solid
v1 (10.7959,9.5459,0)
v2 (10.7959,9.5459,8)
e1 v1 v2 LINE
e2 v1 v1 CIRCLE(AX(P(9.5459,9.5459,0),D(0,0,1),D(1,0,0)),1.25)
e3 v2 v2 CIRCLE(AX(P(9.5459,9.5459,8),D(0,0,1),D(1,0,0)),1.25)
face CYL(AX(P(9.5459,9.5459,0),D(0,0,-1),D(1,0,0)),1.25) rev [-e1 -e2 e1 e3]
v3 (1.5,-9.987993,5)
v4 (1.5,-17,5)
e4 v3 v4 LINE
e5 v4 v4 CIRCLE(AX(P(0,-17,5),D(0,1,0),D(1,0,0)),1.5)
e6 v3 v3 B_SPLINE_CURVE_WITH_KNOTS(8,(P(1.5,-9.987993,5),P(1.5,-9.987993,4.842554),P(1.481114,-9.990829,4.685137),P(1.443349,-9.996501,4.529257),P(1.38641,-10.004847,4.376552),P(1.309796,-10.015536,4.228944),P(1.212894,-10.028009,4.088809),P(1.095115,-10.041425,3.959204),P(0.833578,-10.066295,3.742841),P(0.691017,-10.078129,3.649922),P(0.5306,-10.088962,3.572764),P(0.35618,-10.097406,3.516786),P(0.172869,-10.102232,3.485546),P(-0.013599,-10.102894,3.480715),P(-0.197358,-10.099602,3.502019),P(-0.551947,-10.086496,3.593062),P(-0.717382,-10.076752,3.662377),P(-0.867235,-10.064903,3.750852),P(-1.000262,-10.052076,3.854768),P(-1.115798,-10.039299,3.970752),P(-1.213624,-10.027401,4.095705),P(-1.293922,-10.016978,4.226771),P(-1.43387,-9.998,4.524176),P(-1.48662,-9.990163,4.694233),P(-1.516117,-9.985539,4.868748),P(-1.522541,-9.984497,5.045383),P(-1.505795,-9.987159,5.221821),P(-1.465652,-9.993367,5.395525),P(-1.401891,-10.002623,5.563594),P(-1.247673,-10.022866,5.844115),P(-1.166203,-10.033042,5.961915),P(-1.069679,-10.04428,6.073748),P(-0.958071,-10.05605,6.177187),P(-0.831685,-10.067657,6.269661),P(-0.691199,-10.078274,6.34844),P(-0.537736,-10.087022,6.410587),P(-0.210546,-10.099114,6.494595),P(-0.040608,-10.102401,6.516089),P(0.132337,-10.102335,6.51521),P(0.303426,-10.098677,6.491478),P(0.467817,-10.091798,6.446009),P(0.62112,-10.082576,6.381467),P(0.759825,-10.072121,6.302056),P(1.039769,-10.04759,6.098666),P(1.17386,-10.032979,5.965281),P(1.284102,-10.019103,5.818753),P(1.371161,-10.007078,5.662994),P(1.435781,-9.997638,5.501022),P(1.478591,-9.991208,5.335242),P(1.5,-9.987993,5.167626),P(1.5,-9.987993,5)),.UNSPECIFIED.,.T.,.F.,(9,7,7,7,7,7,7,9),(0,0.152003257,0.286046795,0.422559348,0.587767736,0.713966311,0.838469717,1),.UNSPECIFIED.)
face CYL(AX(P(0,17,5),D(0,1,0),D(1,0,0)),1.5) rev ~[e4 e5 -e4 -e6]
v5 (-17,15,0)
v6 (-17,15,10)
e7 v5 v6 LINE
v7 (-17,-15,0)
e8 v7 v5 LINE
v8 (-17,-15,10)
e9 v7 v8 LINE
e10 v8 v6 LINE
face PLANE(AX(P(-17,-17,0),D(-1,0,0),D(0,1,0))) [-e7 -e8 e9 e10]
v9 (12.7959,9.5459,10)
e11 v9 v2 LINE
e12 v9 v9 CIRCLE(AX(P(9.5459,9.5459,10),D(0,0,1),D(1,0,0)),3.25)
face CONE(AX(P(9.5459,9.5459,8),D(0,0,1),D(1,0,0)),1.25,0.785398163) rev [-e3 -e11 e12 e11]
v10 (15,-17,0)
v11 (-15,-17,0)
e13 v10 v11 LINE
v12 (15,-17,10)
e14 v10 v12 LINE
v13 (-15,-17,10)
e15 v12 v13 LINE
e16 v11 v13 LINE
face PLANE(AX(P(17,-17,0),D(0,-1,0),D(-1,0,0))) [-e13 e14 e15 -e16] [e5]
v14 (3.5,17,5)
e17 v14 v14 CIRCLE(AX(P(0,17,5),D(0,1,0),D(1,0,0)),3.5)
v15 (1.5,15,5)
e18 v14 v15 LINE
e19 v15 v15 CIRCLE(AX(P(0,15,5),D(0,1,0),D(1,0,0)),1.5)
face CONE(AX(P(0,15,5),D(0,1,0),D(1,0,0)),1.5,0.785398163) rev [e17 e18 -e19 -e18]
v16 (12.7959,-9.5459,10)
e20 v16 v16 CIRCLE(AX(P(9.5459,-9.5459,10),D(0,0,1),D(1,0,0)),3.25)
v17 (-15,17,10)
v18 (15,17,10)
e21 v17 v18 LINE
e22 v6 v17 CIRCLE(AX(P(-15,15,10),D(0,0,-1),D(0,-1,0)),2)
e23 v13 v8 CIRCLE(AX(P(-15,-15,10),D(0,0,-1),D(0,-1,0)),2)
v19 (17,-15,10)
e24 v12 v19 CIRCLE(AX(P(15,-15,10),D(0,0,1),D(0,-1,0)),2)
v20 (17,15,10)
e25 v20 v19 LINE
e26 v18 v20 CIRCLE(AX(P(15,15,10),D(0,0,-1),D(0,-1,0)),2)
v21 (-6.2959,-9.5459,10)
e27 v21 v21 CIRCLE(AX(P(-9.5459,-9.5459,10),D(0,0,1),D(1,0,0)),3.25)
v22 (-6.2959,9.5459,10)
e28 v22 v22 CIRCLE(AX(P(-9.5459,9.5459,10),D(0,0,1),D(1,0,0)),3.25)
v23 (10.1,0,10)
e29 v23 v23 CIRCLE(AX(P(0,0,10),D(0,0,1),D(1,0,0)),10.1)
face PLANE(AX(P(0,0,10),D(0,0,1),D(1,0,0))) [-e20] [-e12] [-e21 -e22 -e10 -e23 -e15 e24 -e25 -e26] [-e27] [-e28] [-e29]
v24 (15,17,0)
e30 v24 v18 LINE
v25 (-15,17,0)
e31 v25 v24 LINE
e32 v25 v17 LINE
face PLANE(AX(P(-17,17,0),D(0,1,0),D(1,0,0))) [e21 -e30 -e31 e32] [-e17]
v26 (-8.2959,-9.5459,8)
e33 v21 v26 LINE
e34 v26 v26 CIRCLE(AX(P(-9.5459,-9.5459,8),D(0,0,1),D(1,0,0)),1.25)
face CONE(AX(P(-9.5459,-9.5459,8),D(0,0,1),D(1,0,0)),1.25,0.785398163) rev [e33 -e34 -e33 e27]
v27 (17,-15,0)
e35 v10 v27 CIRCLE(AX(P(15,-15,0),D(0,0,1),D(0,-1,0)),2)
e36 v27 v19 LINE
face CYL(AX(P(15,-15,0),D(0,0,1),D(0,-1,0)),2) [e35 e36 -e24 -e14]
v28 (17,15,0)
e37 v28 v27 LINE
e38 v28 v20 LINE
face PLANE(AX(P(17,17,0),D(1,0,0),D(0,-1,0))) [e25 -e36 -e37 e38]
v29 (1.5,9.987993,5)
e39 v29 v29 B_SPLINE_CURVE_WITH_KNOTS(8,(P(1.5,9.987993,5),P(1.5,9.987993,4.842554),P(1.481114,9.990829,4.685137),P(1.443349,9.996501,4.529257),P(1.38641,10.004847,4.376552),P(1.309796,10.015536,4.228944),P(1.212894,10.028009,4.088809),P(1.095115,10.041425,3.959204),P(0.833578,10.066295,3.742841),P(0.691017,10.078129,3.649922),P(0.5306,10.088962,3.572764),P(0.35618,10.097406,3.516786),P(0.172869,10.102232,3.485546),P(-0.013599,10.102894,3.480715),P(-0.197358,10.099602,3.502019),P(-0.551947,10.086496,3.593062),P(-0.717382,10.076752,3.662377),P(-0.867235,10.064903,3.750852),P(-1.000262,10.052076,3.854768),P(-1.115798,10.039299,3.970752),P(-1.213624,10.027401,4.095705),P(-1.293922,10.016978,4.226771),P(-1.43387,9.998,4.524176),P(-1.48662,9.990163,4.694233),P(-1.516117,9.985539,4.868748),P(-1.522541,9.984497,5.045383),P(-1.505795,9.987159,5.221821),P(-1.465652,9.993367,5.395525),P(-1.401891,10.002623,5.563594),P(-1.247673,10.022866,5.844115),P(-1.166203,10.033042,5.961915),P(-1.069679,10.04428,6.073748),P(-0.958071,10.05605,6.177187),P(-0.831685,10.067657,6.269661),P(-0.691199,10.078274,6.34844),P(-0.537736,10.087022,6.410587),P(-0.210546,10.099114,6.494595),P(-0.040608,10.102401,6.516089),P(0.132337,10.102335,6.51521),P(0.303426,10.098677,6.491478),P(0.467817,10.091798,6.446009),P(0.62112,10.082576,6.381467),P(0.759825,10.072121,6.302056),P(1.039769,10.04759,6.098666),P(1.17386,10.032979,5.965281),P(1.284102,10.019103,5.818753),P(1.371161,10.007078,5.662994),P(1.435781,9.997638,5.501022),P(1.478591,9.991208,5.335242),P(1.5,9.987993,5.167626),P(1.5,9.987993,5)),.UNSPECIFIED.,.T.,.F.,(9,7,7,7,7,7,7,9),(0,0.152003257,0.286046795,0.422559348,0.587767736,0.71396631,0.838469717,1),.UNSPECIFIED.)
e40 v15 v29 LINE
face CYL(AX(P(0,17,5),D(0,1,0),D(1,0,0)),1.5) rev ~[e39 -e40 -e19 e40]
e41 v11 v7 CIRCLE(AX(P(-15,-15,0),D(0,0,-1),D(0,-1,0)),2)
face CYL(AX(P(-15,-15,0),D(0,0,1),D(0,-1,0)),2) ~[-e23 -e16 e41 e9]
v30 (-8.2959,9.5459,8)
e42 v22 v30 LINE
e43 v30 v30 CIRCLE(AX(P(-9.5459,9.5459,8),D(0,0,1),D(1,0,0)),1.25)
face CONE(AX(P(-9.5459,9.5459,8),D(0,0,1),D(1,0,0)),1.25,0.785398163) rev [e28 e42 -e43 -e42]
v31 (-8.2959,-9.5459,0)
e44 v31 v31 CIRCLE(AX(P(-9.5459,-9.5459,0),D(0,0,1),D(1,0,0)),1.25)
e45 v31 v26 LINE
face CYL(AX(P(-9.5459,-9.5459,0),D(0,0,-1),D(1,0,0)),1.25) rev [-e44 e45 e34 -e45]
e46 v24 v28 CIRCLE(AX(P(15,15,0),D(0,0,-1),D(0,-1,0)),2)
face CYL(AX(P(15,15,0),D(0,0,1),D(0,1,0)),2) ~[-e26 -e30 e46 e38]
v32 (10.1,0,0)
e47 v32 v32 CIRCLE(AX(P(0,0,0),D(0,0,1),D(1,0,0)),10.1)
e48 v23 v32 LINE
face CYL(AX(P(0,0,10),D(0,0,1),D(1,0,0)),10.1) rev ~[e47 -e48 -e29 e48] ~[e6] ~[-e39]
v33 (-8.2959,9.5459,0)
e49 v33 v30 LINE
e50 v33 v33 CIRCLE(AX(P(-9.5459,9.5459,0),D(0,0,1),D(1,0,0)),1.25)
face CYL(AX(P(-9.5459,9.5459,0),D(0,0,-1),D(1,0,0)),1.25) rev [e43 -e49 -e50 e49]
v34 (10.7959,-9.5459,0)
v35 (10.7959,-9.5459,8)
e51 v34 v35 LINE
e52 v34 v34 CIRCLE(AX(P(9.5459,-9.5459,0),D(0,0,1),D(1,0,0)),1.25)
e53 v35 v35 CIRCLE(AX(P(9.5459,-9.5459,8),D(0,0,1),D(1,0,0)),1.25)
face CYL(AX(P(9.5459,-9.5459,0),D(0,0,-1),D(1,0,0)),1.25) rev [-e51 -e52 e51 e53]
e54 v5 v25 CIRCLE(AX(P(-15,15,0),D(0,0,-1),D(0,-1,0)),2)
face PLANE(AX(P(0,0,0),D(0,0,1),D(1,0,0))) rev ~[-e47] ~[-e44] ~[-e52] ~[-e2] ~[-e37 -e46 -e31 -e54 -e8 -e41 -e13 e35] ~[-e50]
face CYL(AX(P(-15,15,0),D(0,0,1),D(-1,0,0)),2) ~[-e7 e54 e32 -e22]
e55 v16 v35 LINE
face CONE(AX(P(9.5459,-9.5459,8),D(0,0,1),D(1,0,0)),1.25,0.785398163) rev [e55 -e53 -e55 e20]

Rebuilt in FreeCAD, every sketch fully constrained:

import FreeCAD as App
import Part
import Sketcher
from FreeCAD import Vector
Q = App.Units.Quantity


def edges_at(feature, points):
    """Names of the edges that pass closest to the given points."""
    edges = feature.Shape.Edges
    near = lambda p: min(range(len(edges)), key=lambda i: edges[i].distToShape(Part.Vertex(*p))[0])
    return sorted({f"Edge{near(p) + 1}" for p in points})

doc = App.newDocument("Part")
body = doc.addObject("PartDesign::Body", "Body")

# Sketch on XY plane
sketch1 = body.newObject("Sketcher::SketchObject", "Sketch")
sketch1.AttachmentSupport = (doc.getObject("XY_Plane"), [""])
sketch1.MapMode = "FlatFace"
sketch1.addGeometry(Part.LineSegment(Vector(-17, -17, 0), Vector(17, -17, 0)), False)
sketch1.addGeometry(Part.LineSegment(Vector(17, -17, 0), Vector(17, 17, 0)), False)
sketch1.addGeometry(Part.LineSegment(Vector(17, 17, 0), Vector(-17, 17, 0)), False)
sketch1.addGeometry(Part.LineSegment(Vector(-17, 17, 0), Vector(-17, -17, 0)), False)
sketch1.addGeometry(Part.Circle(Vector(-9.5, -9.5, 0), Vector(0, 0, 1), 1.2), False)
sketch1.addGeometry(Part.Circle(Vector(9.5, -9.5, 0), Vector(0, 0, 1), 1.2), False)
sketch1.addGeometry(Part.Circle(Vector(-9.5, 9.5, 0), Vector(0, 0, 1), 1.2), False)
sketch1.addGeometry(Part.Circle(Vector(9.5, 9.5, 0), Vector(0, 0, 1), 1.2), False)
sketch1.addConstraint(Sketcher.Constraint("Coincident", 0, 2, 1, 1))
sketch1.addConstraint(Sketcher.Constraint("Coincident", 1, 2, 2, 1))
sketch1.addConstraint(Sketcher.Constraint("Coincident", 2, 2, 3, 1))
sketch1.addConstraint(Sketcher.Constraint("Coincident", 3, 2, 0, 1))
sketch1.addConstraint(Sketcher.Constraint("Horizontal", 0))
sketch1.addConstraint(Sketcher.Constraint("Vertical", 1))
sketch1.addConstraint(Sketcher.Constraint("Horizontal", 2))
sketch1.addConstraint(Sketcher.Constraint("Vertical", 3))
sketch1.addConstraint(Sketcher.Constraint("Equal", 4, 5))
sketch1.addConstraint(Sketcher.Constraint("Equal", 5, 6))
sketch1.addConstraint(Sketcher.Constraint("Equal", 6, 7))
sketch1.addConstraint(Sketcher.Constraint("Symmetric", 5, 3, 6, 3, -1, 1))
sketch1.addConstraint(Sketcher.Constraint("Symmetric", 4, 3, 7, 3, -1, 1))
sketch1.addConstraint(Sketcher.Constraint("Symmetric", 0, 2, 2, 2, -1, 1))
sketch1.addConstraint(Sketcher.Constraint("Symmetric", 4, 3, 5, 3, -2))
sketch1.addConstraint(Sketcher.Constraint("Equal", 2, 1))
sketch1.addConstraint(Sketcher.Constraint("Diameter", 4, Q("2.5 mm")))
sketch1.addConstraint(Sketcher.Constraint("DistanceX", 0, 1, 0, 2, Q("34 mm")))
sketch1.addConstraint(Sketcher.Constraint("DistanceX", 4, 3, -1, 1, Q("9.546 mm")))
sketch1.addConstraint(Sketcher.Constraint("DistanceY", 4, 3, -1, 1, Q("9.546 mm")))
pad1 = body.newObject("PartDesign::Pad", "Pad")
pad1.Profile = sketch1
pad1.Length = 10
doc.recompute()

fillet = body.newObject("PartDesign::Fillet", "Fillet")
fillet.Base = (pad1, edges_at(pad1, [
    (17, 17, 5),
    (-17, 17, 5),
    (-17, -17, 5),
    (17, -17, 5),
]))
fillet.Radius = 2

# Sketch on XY plane
sketch2 = body.newObject("Sketcher::SketchObject", "Sketch001")
sketch2.AttachmentSupport = (doc.getObject("XY_Plane"), [""])
sketch2.MapMode = "FlatFace"
sketch2.AttachmentOffset = App.Placement(Vector(0, 0, 10), App.Rotation())
sketch2.addGeometry(Part.Circle(Vector(0, 0, 0), Vector(0, 0, 1), 10), False)
sketch2.addConstraint(Sketcher.Constraint("Coincident", 0, 3, -1, 1))
sketch2.addConstraint(Sketcher.Constraint("Diameter", 0, Q("20.2 mm")))
pocket1 = body.newObject("PartDesign::Pocket", "Pocket")
pocket1.Profile = sketch2
pocket1.Length = 10

# Sketch on XZ plane
sketch3 = body.newObject("Sketcher::SketchObject", "Sketch002")
sketch3.AttachmentSupport = (doc.getObject("XZ_Plane"), [""])
sketch3.MapMode = "FlatFace"
sketch3.AttachmentOffset = App.Placement(Vector(0, 0, -17), App.Rotation())
sketch3.addGeometry(Part.Circle(Vector(0, 5, 0), Vector(0, 0, 1), 1.5), False)
sketch3.addConstraint(Sketcher.Constraint("PointOnObject", 0, 3, -2))
sketch3.addConstraint(Sketcher.Constraint("Diameter", 0, Q("3 mm")))
sketch3.addConstraint(Sketcher.Constraint("DistanceY", -1, 1, 0, 3, Q("5 mm")))
pocket2 = body.newObject("PartDesign::Pocket", "Pocket001")
pocket2.Profile = sketch3
pocket2.Length = 40.5
pocket2.Reversed = True
doc.recompute()

chamfer = body.newObject("PartDesign::Chamfer", "Chamfer")
chamfer.Base = (pocket2, edges_at(pocket2, [
    (-10.796, 9.546, 10),
    (8.296, 9.546, 10),
    (8.296, -9.546, 10),
    (-10.796, -9.546, 10),
    (-1.5, 17, 5),
]))
chamfer.Size = 2

doc.recompute()
